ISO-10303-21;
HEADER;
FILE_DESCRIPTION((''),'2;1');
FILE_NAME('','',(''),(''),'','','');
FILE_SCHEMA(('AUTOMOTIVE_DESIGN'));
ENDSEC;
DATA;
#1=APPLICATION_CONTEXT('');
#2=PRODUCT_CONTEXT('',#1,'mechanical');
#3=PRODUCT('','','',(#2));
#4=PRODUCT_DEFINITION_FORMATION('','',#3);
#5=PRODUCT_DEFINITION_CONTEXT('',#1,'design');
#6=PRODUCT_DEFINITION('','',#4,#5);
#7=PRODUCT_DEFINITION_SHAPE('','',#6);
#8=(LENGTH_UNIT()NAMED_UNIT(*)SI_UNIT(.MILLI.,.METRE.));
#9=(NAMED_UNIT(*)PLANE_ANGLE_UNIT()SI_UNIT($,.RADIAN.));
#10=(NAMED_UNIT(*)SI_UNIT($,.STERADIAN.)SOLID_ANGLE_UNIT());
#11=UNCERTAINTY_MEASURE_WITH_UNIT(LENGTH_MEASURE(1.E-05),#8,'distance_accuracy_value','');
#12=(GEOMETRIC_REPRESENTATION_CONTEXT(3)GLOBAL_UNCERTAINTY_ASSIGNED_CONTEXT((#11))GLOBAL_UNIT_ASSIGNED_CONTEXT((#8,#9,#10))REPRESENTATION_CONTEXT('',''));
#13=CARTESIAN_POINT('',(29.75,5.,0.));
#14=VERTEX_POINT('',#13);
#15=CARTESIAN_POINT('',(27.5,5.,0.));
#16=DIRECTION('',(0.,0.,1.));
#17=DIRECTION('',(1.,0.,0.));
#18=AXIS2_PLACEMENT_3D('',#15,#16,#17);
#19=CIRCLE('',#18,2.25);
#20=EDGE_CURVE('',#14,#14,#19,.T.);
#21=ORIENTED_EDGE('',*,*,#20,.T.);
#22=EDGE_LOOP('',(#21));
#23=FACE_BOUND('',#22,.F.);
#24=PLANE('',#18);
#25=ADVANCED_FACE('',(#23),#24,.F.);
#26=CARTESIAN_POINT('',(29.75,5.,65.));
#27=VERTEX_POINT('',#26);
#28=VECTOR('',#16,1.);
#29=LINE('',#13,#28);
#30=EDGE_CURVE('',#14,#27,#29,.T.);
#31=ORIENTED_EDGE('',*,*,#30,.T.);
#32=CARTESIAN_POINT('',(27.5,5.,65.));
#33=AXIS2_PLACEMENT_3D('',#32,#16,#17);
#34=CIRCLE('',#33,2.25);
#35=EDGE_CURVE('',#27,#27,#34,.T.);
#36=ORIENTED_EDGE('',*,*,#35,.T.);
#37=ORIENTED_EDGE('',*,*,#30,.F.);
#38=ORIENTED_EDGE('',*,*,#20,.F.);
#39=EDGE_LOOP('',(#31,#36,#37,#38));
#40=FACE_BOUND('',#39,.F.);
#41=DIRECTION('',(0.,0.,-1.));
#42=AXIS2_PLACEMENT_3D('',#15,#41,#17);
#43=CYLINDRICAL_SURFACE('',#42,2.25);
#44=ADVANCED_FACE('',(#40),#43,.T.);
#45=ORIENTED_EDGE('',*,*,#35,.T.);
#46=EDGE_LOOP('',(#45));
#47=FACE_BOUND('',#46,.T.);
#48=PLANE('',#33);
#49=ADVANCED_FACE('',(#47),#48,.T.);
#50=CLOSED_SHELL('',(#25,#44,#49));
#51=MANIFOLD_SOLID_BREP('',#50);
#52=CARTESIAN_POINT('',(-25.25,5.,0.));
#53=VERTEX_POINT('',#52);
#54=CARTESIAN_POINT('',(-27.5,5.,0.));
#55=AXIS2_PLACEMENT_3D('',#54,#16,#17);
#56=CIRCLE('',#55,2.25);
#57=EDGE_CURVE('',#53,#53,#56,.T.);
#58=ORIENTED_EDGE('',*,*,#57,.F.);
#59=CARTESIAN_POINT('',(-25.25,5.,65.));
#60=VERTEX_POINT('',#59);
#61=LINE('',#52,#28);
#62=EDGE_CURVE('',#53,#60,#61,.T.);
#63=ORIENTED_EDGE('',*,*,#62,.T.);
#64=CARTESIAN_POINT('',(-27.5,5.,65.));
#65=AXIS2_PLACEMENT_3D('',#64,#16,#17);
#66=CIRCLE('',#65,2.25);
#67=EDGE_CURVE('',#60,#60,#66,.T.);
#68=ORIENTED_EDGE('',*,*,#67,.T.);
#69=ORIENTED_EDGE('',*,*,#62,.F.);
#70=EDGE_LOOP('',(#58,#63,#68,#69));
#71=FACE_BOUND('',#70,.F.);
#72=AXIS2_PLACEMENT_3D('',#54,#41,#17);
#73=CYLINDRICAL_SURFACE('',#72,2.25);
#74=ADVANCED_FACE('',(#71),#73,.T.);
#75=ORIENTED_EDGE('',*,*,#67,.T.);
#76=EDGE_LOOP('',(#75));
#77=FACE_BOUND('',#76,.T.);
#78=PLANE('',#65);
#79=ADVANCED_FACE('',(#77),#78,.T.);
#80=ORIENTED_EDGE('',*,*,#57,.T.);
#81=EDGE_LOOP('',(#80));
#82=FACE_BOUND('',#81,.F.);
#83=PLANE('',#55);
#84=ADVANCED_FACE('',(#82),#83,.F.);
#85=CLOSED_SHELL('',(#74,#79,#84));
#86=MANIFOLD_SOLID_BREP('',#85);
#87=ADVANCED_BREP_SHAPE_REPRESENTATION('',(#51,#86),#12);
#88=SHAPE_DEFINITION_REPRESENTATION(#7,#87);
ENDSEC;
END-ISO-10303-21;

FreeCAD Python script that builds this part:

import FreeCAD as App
import Part
import Sketcher

V = App.Vector
Q = App.Units.Quantity

doc = App.newDocument("Part")
params = doc.addObject("Spreadsheet::Sheet", "Params")
for row, (alias, value) in enumerate([
    ("sketch1_diameter", "4.5 mm"),
    ("pad1_length", "65 mm"),
    ("sketch2_diameter", "4.5 mm"),
    ("pad2_length", "65 mm"),
], start=1):
    params.set(f"A{row}", alias)
    params.set(f"B{row}", "=" + value)
    params.setAlias(f"B{row}", alias)

body = doc.addObject("PartDesign::Body", "Body")

# Sketch on XY plane
sketch1 = body.newObject("Sketcher::SketchObject", "Sketch")
sketch1.AttachmentSupport = (doc.getObject("XY_Plane"), [""])
sketch1.MapMode = "FlatFace"
sketch1.addGeometry(Part.Circle(V(-27.5, 5, 0), V(0, 0, 1), 2.25), False)
sketch1.addConstraint([
    Sketcher.Constraint("Diameter", 0, Q("4.5 mm")),
    Sketcher.Constraint("DistanceY", -1, 1, 0, 3, Q("5 mm")),
    Sketcher.Constraint("DistanceX", 0, 3, -1, 1, Q("27.5 mm")),
])
sketch1.setExpression("Constraints[0]", "Params.sketch1_diameter")
pad1 = body.newObject("PartDesign::Pad", "Pad")
pad1.Profile = sketch1
pad1.setExpression("Length", "Params.pad1_length")
body2 = doc.addObject("PartDesign::Body", "Body001")
body2.AllowCompound = True

# Sketch on XY plane
sketch2 = body2.newObject("Sketcher::SketchObject", "Sketch001")
sketch2.AttachmentSupport = (doc.getObject("XY_Plane001"), [""])
sketch2.MapMode = "FlatFace"
sketch2.addGeometry(Part.Circle(V(27.5, 5, 0), V(0, 0, 1), 2.25), False)
sketch2.addConstraint([
    Sketcher.Constraint("Diameter", 0, Q("4.5 mm")),
    Sketcher.Constraint("DistanceY", -1, 1, 0, 3, Q("5 mm")),
    Sketcher.Constraint("DistanceX", -1, 1, 0, 3, Q("27.5 mm")),
])
sketch2.setExpression("Constraints[0]", "Params.sketch2_diameter")
pad2 = body2.newObject("PartDesign::Pad", "Pad001")
pad2.Profile = sketch2
pad2.setExpression("Length", "Params.pad2_length")
doc.recompute()

boolean = body2.newObject("PartDesign::Boolean", "Boolean")
boolean.Type = "Fuse"
boolean.addObjects([body])

doc.recompute()
